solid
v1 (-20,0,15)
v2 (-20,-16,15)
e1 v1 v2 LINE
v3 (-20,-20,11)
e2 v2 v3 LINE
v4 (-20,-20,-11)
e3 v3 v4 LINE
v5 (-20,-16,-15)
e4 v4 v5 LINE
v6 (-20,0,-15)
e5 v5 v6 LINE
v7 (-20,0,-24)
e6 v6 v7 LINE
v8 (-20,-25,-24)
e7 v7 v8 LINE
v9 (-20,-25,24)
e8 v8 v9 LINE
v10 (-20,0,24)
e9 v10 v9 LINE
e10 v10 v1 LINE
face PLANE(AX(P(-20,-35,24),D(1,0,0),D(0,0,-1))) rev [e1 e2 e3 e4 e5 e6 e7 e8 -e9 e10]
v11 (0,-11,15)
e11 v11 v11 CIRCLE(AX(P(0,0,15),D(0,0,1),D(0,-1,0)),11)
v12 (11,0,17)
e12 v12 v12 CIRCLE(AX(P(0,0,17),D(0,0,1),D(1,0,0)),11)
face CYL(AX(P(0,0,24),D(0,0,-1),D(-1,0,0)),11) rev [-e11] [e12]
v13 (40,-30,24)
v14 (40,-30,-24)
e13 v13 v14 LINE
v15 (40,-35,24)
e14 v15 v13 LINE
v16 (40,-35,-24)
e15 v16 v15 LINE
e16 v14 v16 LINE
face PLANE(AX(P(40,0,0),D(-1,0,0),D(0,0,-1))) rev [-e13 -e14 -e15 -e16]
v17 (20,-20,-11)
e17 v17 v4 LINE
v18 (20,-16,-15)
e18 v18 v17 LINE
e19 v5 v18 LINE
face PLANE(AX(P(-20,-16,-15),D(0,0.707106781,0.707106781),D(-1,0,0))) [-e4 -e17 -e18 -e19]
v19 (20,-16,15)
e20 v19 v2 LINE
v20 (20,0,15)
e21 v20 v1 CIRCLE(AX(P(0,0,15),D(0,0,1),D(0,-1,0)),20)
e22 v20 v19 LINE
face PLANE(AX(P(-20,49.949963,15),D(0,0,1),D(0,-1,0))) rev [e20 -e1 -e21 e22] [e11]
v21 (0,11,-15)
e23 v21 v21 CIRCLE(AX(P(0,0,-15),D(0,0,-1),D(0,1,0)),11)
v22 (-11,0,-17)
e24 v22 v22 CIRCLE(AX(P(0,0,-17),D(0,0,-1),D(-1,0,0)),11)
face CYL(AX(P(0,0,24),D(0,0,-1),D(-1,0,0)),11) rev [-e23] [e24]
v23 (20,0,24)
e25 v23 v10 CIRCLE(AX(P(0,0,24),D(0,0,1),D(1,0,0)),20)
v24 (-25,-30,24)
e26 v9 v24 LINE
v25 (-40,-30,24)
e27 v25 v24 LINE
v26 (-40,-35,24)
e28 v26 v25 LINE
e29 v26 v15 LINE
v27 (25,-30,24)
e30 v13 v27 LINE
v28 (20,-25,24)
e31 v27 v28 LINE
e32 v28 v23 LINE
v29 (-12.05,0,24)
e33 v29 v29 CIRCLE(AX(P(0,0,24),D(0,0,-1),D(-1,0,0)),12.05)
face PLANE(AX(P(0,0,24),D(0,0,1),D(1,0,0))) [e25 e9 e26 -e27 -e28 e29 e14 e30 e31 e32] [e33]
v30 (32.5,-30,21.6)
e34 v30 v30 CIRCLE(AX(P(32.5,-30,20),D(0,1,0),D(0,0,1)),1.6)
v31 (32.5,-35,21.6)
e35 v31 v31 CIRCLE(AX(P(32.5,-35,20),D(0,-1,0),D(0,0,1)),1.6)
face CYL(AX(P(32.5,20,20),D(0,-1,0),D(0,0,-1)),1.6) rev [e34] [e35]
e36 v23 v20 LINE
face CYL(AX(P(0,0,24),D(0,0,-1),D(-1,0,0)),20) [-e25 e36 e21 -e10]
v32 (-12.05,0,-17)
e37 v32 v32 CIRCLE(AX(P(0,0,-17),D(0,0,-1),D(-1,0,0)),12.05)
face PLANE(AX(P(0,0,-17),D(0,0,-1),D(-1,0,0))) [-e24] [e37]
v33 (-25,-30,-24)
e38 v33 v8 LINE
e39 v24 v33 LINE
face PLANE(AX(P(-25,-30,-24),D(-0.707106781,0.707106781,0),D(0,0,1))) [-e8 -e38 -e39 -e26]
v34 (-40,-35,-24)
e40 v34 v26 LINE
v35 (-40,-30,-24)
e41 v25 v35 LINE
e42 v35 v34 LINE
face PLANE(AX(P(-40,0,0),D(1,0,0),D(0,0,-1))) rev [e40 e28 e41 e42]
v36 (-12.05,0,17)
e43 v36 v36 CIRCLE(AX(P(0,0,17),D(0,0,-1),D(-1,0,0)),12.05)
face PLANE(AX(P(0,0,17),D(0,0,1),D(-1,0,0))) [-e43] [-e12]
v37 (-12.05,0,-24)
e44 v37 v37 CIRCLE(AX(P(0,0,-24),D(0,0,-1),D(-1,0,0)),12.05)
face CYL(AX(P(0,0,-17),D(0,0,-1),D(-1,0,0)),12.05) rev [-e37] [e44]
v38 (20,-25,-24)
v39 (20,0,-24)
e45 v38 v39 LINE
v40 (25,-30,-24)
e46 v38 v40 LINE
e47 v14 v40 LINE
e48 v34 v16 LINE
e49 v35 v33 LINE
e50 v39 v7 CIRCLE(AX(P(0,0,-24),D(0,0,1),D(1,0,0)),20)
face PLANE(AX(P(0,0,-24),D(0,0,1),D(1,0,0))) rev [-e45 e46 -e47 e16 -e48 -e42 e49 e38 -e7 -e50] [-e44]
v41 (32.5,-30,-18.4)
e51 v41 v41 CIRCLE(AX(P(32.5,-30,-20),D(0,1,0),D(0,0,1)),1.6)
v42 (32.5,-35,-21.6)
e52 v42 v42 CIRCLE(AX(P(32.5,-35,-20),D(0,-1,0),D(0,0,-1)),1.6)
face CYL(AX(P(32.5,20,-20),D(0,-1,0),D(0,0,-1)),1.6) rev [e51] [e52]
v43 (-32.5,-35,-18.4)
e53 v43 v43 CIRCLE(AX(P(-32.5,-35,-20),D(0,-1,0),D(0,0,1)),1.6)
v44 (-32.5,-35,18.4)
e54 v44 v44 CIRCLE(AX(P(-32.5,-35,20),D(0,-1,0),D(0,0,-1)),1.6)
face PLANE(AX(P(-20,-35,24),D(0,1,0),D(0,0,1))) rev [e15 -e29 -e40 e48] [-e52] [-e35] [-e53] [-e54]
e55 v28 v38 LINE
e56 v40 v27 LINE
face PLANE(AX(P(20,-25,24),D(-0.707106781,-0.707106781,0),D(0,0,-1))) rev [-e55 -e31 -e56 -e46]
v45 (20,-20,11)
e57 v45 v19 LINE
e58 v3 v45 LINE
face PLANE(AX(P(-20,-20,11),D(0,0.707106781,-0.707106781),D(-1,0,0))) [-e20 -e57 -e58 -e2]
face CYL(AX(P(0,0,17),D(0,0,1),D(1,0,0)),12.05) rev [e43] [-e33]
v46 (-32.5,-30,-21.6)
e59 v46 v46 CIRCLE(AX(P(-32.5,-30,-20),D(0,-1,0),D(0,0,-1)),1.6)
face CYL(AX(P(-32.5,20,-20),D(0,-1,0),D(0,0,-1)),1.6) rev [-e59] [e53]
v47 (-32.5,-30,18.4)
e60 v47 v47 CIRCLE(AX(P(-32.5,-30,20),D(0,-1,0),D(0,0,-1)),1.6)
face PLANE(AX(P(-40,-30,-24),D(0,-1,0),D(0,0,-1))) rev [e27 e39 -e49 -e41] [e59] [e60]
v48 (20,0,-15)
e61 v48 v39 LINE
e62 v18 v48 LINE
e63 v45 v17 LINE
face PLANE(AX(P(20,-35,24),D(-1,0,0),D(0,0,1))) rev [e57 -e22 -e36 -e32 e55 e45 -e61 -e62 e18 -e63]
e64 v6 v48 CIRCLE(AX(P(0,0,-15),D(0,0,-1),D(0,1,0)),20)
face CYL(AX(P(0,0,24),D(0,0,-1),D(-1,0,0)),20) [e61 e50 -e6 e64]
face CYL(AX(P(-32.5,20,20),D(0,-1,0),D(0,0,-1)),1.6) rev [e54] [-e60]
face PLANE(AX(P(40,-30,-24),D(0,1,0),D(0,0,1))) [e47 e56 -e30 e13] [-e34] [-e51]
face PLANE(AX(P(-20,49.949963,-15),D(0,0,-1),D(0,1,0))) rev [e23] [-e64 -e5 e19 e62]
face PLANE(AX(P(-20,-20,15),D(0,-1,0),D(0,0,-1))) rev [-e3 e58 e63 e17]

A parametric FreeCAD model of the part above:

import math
import FreeCAD as App
import Part
import Sketcher

V = App.Vector
Q = App.Units.Quantity


def edges_at(feature, points):
    """Names of the edges that pass closest to the given points."""
    edges = feature.Shape.Edges
    near = lambda p: min(range(len(edges)), key=lambda i: edges[i].distToShape(Part.Vertex(*p))[0])
    return sorted({f"Edge{near(p) + 1}" for p in points})

doc = App.newDocument("Part")
params = doc.addObject("Spreadsheet::Sheet", "Params")
for row, (alias, value) in enumerate([
    ("sketch1_diameter", "22 mm"),
    ("sketch1_radius", "20 mm"),
    ("sketch1_height", "35 mm"),
    ("pad1_length", "48 mm"),
    ("sketch2_height", "30 mm"),
    ("sketch3_diameter", "24.1 mm"),
    ("pocket2_length", "7 mm"),
    ("chamfer_size", "4 mm"),
    ("sketch4_width", "5 mm"),
    ("sketch4_height", "48 mm"),
    ("pad2_length", "20 mm"),
    ("chamfer2_size", "5 mm"),
    ("sketch5_diameter", "3.2 mm"),
], start=1):
    params.set(f"A{row}", alias)
    params.set(f"B{row}", "=" + value)
    params.setAlias(f"B{row}", alias)

body = doc.addObject("PartDesign::Body", "Body")

# Sketch on XY plane
sketch1 = body.newObject("Sketcher::SketchObject", "Sketch")
sketch1.AttachmentSupport = (doc.getObject("XY_Plane"), [""])
sketch1.MapMode = "FlatFace"
sketch1.addGeometry(Part.LineSegment(V(-20, 0, 0), V(-20, -35, 0)), False)
sketch1.addGeometry(Part.LineSegment(V(-20, -35, 0), V(20, -35, 0)), False)
sketch1.addGeometry(Part.LineSegment(V(20, -35, 0), V(20, 0, 0)), False)
sketch1.addGeometry(Part.ArcOfCircle(Part.Circle(V(0, 0, 0), V(0, 0, 1), 20), math.radians(0), math.radians(180)), False)
sketch1.addGeometry(Part.Circle(V(0, 0, 0), V(0, 0, 1), 11), False)
sketch1.addConstraint(Sketcher.Constraint("Coincident", 0, 2, 1, 1))
sketch1.addConstraint(Sketcher.Constraint("Coincident", 1, 2, 2, 1))
sketch1.addConstraint(Sketcher.Constraint("Tangent", 2, 2, 3, 1))
sketch1.addConstraint(Sketcher.Constraint("Tangent", 3, 2, 0, 1))
sketch1.addConstraint(Sketcher.Constraint("Vertical", 0))
sketch1.addConstraint(Sketcher.Constraint("Horizontal", 1))
sketch1.addConstraint(Sketcher.Constraint("Vertical", 2))
sketch1.addConstraint(Sketcher.Constraint("Coincident", 3, 3, -1, 1))
sketch1.addConstraint(Sketcher.Constraint("Coincident", 4, 3, -1, 1))
sketch1.addConstraint(Sketcher.Constraint("Diameter", 4, Q("22 mm")))
sketch1.addConstraint(Sketcher.Constraint("Radius", 3, Q("20 mm")))
sketch1.addConstraint(Sketcher.Constraint("DistanceY", 0, 2, 0, 1, Q("35 mm")))
sketch1.setExpression("Constraints[9]", "Params.sketch1_diameter")
sketch1.setExpression("Constraints[10]", "Params.sketch1_radius")
sketch1.setExpression("Constraints[11]", "Params.sketch1_height")
pad1 = body.newObject("PartDesign::Pad", "Pad")
pad1.Profile = sketch1
pad1.setExpression("Length", "Params.pad1_length")
pad1.Midplane = True

# Sketch on YZ plane
sketch2 = body.newObject("Sketcher::SketchObject", "Sketch001")
sketch2.AttachmentSupport = (doc.getObject("YZ_Plane"), [""])
sketch2.MapMode = "FlatFace"
sketch2.addGeometry(Part.LineSegment(V(49.949963, 15, 0), V(-20, 15, 0)), False)
sketch2.addGeometry(Part.LineSegment(V(-20, 15, 0), V(-20, -15, 0)), False)
sketch2.addGeometry(Part.LineSegment(V(-20, -15, 0), V(49.949963, -15, 0)), False)
sketch2.addGeometry(Part.LineSegment(V(49.949963, -15, 0), V(49.949963, 15, 0)), False)
sketch2.addConstraint(Sketcher.Constraint("Coincident", 0, 2, 1, 1))
sketch2.addConstraint(Sketcher.Constraint("Coincident", 1, 2, 2, 1))
sketch2.addConstraint(Sketcher.Constraint("Coincident", 2, 2, 3, 1))
sketch2.addConstraint(Sketcher.Constraint("Coincident", 3, 2, 0, 1))
sketch2.addConstraint(Sketcher.Constraint("Horizontal", 0))
sketch2.addConstraint(Sketcher.Constraint("Vertical", 1))
sketch2.addConstraint(Sketcher.Constraint("Horizontal", 2))
sketch2.addConstraint(Sketcher.Constraint("Vertical", 3))
sketch2.addConstraint(Sketcher.Constraint("DistanceY", 1, 2, 1, 1, Q("30 mm")))
sketch2.addConstraint(Sketcher.Constraint("DistanceX", 0, 2, -1, 1, Q("20 mm")))
sketch2.addConstraint(Sketcher.Constraint("DistanceY", -1, 1, 0, 2, Q("15 mm")))
sketch2.addConstraint(Sketcher.Constraint("DistanceX", 0, 2, 0, 1, Q("69.949963 mm")))
sketch2.setExpression("Constraints[8]", "Params.sketch2_height")
pocket1 = body.newObject("PartDesign::Pocket", "Pocket")
pocket1.Profile = sketch2
pocket1.Type = "ThroughAll"
pocket1.Midplane = True

# Sketch on XY plane
sketch3 = body.newObject("Sketcher::SketchObject", "Sketch002")
sketch3.AttachmentSupport = (doc.getObject("XY_Plane"), [""])
sketch3.MapMode = "FlatFace"
sketch3.AttachmentOffset = App.Placement(V(0, 0, -24), App.Rotation())
sketch3.addGeometry(Part.Circle(V(0, 0, 0), V(0, 0, 1), 12.05), False)
sketch3.addConstraint(Sketcher.Constraint("Coincident", 0, 3, -1, 1))
sketch3.addConstraint(Sketcher.Constraint("Diameter", 0, Q("24.1 mm")))
sketch3.setExpression("Constraints[1]", "Params.sketch3_diameter")
pocket2 = body.newObject("PartDesign::Pocket", "Pocket001")
pocket2.Profile = sketch3
pocket2.setExpression("Length", "Params.pocket2_length")
pocket2.Reversed = True
doc.recompute()

chamfer = body.newObject("PartDesign::Chamfer", "Chamfer")
chamfer.Base = (pocket2, edges_at(pocket2, [(0, -20, 15), (0, -20, -15)]))
chamfer.setExpression("Size", "Params.chamfer_size")
doc.recompute()

mirrored = body.newObject("PartDesign::Mirrored", "Mirrored")
mirrored.Originals = [pocket2]
mirrored.MirrorPlane = (doc.getObject("XY_Plane"), [""])
body.Tip = mirrored

# Sketch on YZ plane
sketch4 = body.newObject("Sketcher::SketchObject", "Sketch003")
sketch4.AttachmentSupport = (doc.getObject("YZ_Plane"), [""])
sketch4.MapMode = "FlatFace"
sketch4.AttachmentOffset = App.Placement(V(0, 0, -20), App.Rotation())
sketch4.addGeometry(Part.LineSegment(V(-30, -24, 0), V(-35, -24, 0)), False)
sketch4.addGeometry(Part.LineSegment(V(-35, -24, 0), V(-35, 24, 0)), False)
sketch4.addGeometry(Part.LineSegment(V(-35, 24, 0), V(-30, 24, 0)), False)
sketch4.addGeometry(Part.LineSegment(V(-30, 24, 0), V(-30, -24, 0)), False)
sketch4.addConstraint(Sketcher.Constraint("Coincident", 0, 2, 1, 1))
sketch4.addConstraint(Sketcher.Constraint("Coincident", 1, 2, 2, 1))
sketch4.addConstraint(Sketcher.Constraint("Coincident", 2, 2, 3, 1))
sketch4.addConstraint(Sketcher.Constraint("Coincident", 3, 2, 0, 1))
sketch4.addConstraint(Sketcher.Constraint("Horizontal", 0))
sketch4.addConstraint(Sketcher.Constraint("Vertical", 1))
sketch4.addConstraint(Sketcher.Constraint("Horizontal", 2))
sketch4.addConstraint(Sketcher.Constraint("Vertical", 3))
sketch4.addConstraint(Sketcher.Constraint("DistanceX", 0, 2, 0, 1, Q("5 mm")))
sketch4.addConstraint(Sketcher.Constraint("DistanceY", 1, 1, 1, 2, Q("48 mm")))
sketch4.addConstraint(Sketcher.Constraint("DistanceX", 0, 2, -1, 1, Q("35 mm")))
sketch4.addConstraint(Sketcher.Constraint("DistanceY", 0, 2, -1, 1, Q("24 mm")))
sketch4.setExpression("Constraints[8]", "Params.sketch4_width")
sketch4.setExpression("Constraints[9]", "Params.sketch4_height")
pad2 = body.newObject("PartDesign::Pad", "Pad001")
pad2.Profile = sketch4
pad2.setExpression("Length", "Params.pad2_length")
pad2.Reversed = True
doc.recompute()

mirrored2 = body.newObject("PartDesign::Mirrored", "Mirrored001")
mirrored2.Originals = [pad2]
mirrored2.MirrorPlane = (doc.getObject("YZ_Plane"), [""])
body.Tip = mirrored2
doc.recompute()

chamfer2 = body.newObject("PartDesign::Chamfer", "Chamfer001")
chamfer2.Base = (mirrored2, edges_at(mirrored2, [(-20, -30, 0), (20, -30, 0)]))
chamfer2.setExpression("Size", "Params.chamfer2_size")

# Sketch on XZ plane
sketch5 = body.newObject("Sketcher::SketchObject", "Sketch004")
sketch5.AttachmentSupport = (doc.getObject("XZ_Plane"), [""])
sketch5.MapMode = "FlatFace"
sketch5.AttachmentOffset = App.Placement(V(0, 0, 35), App.Rotation())
sketch5.addGeometry(Part.Circle(V(32.5, -20, 0), V(0, 0, 1), 1.6), False)
sketch5.addGeometry(Part.Circle(V(-32.5, -20, 0), V(0, 0, 1), 1.6), False)
sketch5.addGeometry(Part.Circle(V(-32.5, 20, 0), V(0, 0, 1), 1.6), False)
sketch5.addGeometry(Part.Circle(V(32.5, 20, 0), V(0, 0, 1), 1.6), False)
sketch5.addConstraint(Sketcher.Constraint("Equal", 0, 1))
sketch5.addConstraint(Sketcher.Constraint("Equal", 1, 2))
sketch5.addConstraint(Sketcher.Constraint("Equal", 2, 3))
sketch5.addConstraint(Sketcher.Constraint("Symmetric", 0, 3, 2, 3, -1, 1))
sketch5.addConstraint(Sketcher.Constraint("Symmetric", 1, 3, 3, 3, -1, 1))
sketch5.addConstraint(Sketcher.Constraint("Symmetric", 0, 3, 1, 3, -2))
sketch5.addConstraint(Sketcher.Constraint("Diameter", 0, Q("3.2 mm")))
sketch5.addConstraint(Sketcher.Constraint("DistanceY", 0, 3, -1, 1, Q("20 mm")))
sketch5.addConstraint(Sketcher.Constraint("DistanceX", 1, 3, 0, 3, Q("65 mm")))
sketch5.setExpression("Constraints[6]", "Params.sketch5_diameter")
pocket3 = body.newObject("PartDesign::Pocket", "Pocket002")
pocket3.Profile = sketch5
pocket3.Type = "ThroughAll"

doc.recompute()
